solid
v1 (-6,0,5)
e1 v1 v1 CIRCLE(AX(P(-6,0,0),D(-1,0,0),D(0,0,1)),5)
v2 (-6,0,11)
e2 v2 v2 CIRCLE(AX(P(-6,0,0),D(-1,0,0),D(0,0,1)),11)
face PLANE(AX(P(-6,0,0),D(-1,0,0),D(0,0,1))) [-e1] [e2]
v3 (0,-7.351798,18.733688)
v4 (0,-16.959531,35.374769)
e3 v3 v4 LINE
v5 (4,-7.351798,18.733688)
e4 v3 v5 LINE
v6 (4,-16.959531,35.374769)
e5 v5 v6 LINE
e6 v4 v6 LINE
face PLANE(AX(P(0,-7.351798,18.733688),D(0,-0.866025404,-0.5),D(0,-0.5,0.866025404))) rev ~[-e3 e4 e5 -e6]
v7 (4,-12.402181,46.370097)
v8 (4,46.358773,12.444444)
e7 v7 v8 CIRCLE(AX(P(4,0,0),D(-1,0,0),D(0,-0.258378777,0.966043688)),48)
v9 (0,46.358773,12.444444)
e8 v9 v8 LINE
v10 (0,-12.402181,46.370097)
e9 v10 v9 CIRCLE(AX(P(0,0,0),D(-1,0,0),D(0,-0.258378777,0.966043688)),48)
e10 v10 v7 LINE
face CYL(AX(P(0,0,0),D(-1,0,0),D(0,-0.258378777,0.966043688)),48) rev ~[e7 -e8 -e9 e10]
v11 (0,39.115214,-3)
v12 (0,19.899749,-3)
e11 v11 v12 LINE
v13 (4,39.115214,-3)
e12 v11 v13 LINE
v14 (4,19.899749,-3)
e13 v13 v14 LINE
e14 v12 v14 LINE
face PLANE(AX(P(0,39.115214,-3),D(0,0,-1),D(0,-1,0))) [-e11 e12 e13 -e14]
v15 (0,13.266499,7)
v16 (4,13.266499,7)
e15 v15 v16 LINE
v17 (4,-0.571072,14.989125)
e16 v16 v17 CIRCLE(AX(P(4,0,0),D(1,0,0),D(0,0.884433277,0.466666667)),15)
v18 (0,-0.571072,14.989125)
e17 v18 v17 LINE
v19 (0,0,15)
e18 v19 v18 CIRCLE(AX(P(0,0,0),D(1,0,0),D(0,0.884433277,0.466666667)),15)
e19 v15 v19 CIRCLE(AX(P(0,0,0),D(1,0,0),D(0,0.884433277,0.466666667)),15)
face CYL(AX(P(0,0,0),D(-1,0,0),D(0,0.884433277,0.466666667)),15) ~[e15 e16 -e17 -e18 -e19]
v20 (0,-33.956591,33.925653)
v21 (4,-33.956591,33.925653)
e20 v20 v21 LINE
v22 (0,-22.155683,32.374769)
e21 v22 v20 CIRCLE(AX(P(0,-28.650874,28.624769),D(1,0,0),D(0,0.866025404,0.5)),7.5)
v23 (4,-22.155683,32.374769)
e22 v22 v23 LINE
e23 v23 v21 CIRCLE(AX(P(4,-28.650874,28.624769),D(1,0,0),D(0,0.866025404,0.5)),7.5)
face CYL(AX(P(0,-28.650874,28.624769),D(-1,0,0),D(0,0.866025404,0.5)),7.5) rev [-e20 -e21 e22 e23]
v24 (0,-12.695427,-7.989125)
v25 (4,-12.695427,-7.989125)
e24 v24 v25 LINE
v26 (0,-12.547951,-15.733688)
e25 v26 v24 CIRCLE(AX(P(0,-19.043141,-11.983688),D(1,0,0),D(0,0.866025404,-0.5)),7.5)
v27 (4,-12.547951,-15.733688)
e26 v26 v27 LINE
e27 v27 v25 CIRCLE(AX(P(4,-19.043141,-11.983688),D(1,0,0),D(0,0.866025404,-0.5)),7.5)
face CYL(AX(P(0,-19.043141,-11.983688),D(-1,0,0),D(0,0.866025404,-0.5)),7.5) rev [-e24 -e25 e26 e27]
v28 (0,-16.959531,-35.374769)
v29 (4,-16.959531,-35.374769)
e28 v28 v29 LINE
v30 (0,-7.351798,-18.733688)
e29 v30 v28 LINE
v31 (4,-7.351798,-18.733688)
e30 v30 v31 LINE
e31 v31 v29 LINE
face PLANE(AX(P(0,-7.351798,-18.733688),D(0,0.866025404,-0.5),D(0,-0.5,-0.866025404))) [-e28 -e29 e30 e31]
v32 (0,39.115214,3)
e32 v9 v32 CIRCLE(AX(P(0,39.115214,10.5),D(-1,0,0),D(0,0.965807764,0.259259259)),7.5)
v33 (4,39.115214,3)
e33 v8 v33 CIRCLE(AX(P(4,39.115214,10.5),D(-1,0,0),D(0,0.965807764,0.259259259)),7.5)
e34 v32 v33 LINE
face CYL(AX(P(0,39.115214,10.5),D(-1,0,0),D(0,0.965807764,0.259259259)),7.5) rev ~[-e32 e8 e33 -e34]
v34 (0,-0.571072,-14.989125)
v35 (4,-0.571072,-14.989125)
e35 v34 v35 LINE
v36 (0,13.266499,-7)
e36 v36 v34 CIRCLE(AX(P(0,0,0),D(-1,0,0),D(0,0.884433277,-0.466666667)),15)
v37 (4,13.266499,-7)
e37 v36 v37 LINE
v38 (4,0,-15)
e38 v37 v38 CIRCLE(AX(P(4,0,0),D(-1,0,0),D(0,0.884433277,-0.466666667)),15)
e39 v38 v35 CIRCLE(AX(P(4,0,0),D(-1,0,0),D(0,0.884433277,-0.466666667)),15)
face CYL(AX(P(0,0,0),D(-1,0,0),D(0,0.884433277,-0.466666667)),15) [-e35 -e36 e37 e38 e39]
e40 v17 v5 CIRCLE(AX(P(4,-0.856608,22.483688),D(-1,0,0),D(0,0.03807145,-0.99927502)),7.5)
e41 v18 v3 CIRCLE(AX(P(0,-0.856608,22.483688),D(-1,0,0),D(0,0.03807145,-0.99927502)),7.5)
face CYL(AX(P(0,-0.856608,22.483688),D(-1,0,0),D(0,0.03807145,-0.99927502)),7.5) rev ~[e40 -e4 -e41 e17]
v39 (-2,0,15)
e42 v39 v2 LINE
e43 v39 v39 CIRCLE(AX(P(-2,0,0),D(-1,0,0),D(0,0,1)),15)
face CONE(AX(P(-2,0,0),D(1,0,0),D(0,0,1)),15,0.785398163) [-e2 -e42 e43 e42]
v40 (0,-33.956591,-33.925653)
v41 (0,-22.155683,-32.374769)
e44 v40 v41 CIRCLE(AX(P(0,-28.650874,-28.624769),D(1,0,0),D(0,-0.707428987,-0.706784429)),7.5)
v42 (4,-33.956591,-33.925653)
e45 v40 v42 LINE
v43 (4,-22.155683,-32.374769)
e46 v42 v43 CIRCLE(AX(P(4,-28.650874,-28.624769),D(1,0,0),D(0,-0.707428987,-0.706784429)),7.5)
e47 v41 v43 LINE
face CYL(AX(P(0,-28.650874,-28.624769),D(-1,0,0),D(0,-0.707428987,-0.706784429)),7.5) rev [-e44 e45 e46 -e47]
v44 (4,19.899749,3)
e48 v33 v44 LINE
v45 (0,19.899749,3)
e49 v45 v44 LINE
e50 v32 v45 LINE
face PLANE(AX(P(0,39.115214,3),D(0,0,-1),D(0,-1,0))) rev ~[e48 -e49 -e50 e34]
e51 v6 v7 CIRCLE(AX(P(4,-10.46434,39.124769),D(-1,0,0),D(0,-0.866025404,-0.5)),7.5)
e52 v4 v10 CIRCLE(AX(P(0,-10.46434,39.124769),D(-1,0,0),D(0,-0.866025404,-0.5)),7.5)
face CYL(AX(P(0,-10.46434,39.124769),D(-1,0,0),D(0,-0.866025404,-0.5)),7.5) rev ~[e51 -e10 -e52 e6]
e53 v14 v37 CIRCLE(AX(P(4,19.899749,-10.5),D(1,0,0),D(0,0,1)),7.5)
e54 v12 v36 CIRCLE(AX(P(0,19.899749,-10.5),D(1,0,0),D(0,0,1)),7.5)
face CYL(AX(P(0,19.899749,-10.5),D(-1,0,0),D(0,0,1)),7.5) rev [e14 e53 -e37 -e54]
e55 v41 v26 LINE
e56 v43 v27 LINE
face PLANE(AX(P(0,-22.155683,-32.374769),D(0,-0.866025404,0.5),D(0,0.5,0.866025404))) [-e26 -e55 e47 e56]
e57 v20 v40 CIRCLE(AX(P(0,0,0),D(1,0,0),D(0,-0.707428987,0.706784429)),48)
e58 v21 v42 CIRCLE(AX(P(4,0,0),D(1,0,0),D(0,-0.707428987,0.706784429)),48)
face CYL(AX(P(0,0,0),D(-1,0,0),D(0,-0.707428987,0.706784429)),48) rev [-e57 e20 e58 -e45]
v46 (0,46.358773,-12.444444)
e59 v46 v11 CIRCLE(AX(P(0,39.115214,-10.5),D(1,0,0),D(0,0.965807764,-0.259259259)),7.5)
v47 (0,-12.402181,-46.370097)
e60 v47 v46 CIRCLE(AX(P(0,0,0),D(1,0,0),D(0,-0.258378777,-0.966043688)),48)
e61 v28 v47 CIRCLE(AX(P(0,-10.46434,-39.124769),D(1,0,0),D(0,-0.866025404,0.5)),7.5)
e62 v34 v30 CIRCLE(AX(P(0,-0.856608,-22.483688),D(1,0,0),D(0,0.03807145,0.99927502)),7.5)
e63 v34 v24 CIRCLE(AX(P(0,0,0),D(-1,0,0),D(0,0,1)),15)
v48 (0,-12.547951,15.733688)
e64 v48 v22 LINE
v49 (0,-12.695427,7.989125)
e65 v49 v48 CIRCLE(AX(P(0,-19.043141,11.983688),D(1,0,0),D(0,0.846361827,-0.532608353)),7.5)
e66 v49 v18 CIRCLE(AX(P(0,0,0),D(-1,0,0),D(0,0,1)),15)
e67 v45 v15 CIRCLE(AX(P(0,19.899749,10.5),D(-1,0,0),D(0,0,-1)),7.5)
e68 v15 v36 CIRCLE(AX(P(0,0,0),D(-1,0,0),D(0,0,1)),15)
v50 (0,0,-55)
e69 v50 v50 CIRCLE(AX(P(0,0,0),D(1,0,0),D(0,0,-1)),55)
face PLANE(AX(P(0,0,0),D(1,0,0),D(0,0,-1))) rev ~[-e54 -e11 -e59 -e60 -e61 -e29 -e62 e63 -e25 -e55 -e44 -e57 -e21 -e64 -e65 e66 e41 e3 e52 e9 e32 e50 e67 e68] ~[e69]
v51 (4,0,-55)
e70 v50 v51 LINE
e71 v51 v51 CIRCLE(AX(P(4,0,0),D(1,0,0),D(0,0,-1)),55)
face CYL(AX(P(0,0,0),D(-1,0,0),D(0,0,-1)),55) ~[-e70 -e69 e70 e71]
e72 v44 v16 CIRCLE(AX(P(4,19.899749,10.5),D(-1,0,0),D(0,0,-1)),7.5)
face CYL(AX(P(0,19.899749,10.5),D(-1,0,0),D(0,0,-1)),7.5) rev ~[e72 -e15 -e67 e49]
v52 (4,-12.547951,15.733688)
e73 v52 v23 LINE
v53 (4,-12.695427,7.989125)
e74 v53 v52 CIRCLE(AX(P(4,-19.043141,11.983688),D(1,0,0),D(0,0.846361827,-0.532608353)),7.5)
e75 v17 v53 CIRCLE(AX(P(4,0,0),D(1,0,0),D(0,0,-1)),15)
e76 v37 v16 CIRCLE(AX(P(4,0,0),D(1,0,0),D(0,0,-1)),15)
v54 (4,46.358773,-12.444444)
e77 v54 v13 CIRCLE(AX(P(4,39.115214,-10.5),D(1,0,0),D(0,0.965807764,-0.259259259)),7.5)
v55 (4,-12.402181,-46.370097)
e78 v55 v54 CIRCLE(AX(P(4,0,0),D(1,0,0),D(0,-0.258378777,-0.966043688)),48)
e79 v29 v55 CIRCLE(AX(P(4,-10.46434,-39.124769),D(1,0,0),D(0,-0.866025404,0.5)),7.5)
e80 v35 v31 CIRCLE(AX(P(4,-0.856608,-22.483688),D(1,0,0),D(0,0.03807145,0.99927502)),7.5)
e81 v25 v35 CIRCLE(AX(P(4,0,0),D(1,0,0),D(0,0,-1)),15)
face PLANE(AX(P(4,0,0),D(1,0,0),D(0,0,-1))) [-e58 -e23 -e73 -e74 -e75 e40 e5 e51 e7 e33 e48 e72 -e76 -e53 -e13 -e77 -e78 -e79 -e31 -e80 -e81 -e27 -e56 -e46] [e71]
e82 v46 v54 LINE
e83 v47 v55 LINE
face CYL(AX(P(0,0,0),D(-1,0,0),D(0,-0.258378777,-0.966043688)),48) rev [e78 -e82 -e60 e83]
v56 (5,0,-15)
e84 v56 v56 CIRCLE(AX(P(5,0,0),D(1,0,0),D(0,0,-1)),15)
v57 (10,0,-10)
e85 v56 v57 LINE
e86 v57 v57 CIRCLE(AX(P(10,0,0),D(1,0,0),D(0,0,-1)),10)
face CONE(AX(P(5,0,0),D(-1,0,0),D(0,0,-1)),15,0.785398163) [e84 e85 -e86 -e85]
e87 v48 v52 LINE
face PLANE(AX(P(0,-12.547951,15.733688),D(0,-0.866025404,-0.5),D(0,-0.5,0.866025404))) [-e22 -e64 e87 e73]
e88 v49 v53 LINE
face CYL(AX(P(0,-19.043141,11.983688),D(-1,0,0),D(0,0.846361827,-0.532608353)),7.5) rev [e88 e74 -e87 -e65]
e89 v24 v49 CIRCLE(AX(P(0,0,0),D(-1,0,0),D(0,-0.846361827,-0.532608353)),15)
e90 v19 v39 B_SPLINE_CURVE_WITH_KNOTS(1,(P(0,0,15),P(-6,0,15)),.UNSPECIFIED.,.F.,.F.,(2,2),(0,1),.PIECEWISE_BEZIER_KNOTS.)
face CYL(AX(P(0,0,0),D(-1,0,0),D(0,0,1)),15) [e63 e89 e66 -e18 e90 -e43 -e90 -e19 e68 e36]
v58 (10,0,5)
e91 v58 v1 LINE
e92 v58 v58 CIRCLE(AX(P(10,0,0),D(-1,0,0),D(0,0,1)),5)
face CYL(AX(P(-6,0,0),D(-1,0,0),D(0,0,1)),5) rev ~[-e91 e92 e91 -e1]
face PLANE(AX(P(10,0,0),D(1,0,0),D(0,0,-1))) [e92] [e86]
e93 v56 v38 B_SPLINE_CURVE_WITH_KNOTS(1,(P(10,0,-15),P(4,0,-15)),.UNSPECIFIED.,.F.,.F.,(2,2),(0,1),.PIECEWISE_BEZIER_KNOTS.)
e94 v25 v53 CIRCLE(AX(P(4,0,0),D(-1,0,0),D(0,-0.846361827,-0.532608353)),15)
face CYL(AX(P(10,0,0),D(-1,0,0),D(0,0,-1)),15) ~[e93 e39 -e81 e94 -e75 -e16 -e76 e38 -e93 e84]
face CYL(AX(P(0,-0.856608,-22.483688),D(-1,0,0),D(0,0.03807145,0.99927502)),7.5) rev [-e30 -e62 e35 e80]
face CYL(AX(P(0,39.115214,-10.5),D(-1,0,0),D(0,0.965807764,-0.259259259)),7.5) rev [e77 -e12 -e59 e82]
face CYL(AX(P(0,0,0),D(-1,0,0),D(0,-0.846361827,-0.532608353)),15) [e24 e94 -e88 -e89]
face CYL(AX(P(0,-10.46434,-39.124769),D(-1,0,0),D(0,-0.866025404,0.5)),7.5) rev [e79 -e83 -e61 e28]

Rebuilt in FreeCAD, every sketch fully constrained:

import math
import FreeCAD as App
import Part
import Sketcher
Q = App.Units.Quantity


def edges_at(feature, points):
    """Names of the edges that pass closest to the given points."""
    edges = feature.Shape.Edges
    near = lambda p: min(range(len(edges)), key=lambda i: edges[i].distToShape(Part.Vertex(*p))[0])
    return sorted({f"Edge{near(p) + 1}" for p in points})

doc = App.newDocument("Part")
body = doc.addObject("PartDesign::Body", "Body")

# Sketch on YZ plane
sketch1 = body.newObject("Sketcher::SketchObject", "Sketch")
sketch1.AttachmentSupport = (doc.getObject("YZ_Plane"), [""])
sketch1.MapMode = "FlatFace"
sketch1.addGeometry([
    Part.Circle(App.Vector(0, 0, 0), App.Vector(0, 0, 1), 55),  # 0
    Part.LineSegment(App.Vector(-13, -16, 0), App.Vector(-22, -32, 0)),  # 1
    Part.ArcOfCircle(Part.Circle(App.Vector(-29, -29, 0), App.Vector(0, 0, 1), 8), math.radians(-135), math.radians(-30)),  # 2
    Part.ArcOfCircle(Part.Circle(App.Vector(0, 0, 0), App.Vector(0, 0, 1), 48), math.radians(135), math.radians(225)),  # 3
    Part.ArcOfCircle(Part.Circle(App.Vector(-29, 29, 0), App.Vector(0, 0, 1), 8), math.radians(30), math.radians(135)),  # 4
    Part.LineSegment(App.Vector(-22, 32, 0), App.Vector(-13, 16, 0)),  # 5
    Part.ArcOfCircle(Part.Circle(App.Vector(-19, 12, 0), App.Vector(0, 0, 1), 8), math.radians(-32), math.radians(30)),  # 6
    Part.ArcOfCircle(Part.Circle(App.Vector(0, 0, 0), App.Vector(0, 0, 1), 15), math.radians(148), math.radians(212)),  # 7
    Part.ArcOfCircle(Part.Circle(App.Vector(-19, -12, 0), App.Vector(0, 0, 1), 8), math.radians(-30), math.radians(32)),  # 8
    Part.ArcOfCircle(Part.Circle(App.Vector(39, 10, 0), App.Vector(0, 0, 1), 8), math.radians(-90), math.radians(15)),  # 9
    Part.LineSegment(App.Vector(39, 3, 0), App.Vector(20, 3, 0)),  # 10
    Part.ArcOfCircle(Part.Circle(App.Vector(20, 11, 0), App.Vector(0, 0, 1), 8), math.radians(-152), math.radians(-90)),  # 11
    Part.ArcOfCircle(Part.Circle(App.Vector(0, 0, 0), App.Vector(0, 0, 1), 15), math.radians(28), math.radians(92)),  # 12
    Part.ArcOfCircle(Part.Circle(App.Vector(-1, 22, 0), App.Vector(0, 0, 1), 8), math.radians(-150), math.radians(-88)),  # 13
    Part.LineSegment(App.Vector(-7, 19, 0), App.Vector(-17, 35, 0)),  # 14
    Part.ArcOfCircle(Part.Circle(App.Vector(-10, 39, 0), App.Vector(0, 0, 1), 7), math.radians(105), math.radians(210)),  # 15
    Part.ArcOfCircle(Part.Circle(App.Vector(0, 0, 0), App.Vector(0, 0, 1), 48), math.radians(15), math.radians(105)),  # 16
    Part.LineSegment(App.Vector(20, -3, 0), App.Vector(39, -3, 0)),  # 17
    Part.ArcOfCircle(Part.Circle(App.Vector(39, -10, 0), App.Vector(0, 0, 1), 8), math.radians(-15), math.radians(90)),  # 18
    Part.ArcOfCircle(Part.Circle(App.Vector(0, 0, 0), App.Vector(0, 0, 1), 48), math.radians(-105), math.radians(-15)),  # 19
    Part.ArcOfCircle(Part.Circle(App.Vector(-10, -39, 0), App.Vector(0, 0, 1), 7), math.radians(150), math.radians(255)),  # 20
    Part.LineSegment(App.Vector(-17, -35, 0), App.Vector(-7, -19, 0)),  # 21
    Part.ArcOfCircle(Part.Circle(App.Vector(-1, -22, 0), App.Vector(0, 0, 1), 8), math.radians(88), math.radians(150)),  # 22
    Part.ArcOfCircle(Part.Circle(App.Vector(0, 0, 0), App.Vector(0, 0, 1), 15), math.radians(-92), math.radians(-28)),  # 23
    Part.ArcOfCircle(Part.Circle(App.Vector(20, -11, 0), App.Vector(0, 0, 1), 8), math.radians(90), math.radians(152)),  # 24
], False)
sketch1.addConstraint([
    Sketcher.Constraint("Tangent", 1, 2, 2, 2),
    Sketcher.Constraint("Tangent", 2, 1, 3, 2),
    Sketcher.Constraint("Tangent", 3, 1, 4, 2),
    Sketcher.Constraint("Tangent", 4, 1, 5, 1),
    Sketcher.Constraint("Tangent", 5, 2, 6, 2),
    Sketcher.Constraint("Tangent", 6, 1, 7, 1),
    Sketcher.Constraint("Tangent", 7, 2, 8, 2),
    Sketcher.Constraint("Tangent", 8, 1, 1, 1),
    Sketcher.Constraint("Tangent", 9, 1, 10, 1),
    Sketcher.Constraint("Tangent", 10, 2, 11, 2),
    Sketcher.Constraint("Tangent", 11, 1, 12, 1),
    Sketcher.Constraint("Tangent", 12, 2, 13, 2),
    Sketcher.Constraint("Tangent", 13, 1, 14, 1),
    Sketcher.Constraint("Tangent", 14, 2, 15, 2),
    Sketcher.Constraint("Tangent", 15, 1, 16, 2),
    Sketcher.Constraint("Tangent", 16, 1, 9, 2),
    Sketcher.Constraint("Tangent", 17, 2, 18, 2),
    Sketcher.Constraint("Tangent", 18, 1, 19, 2),
    Sketcher.Constraint("Tangent", 19, 1, 20, 2),
    Sketcher.Constraint("Tangent", 20, 1, 21, 1),
    Sketcher.Constraint("Tangent", 21, 2, 22, 2),
    Sketcher.Constraint("Tangent", 22, 1, 23, 1),
    Sketcher.Constraint("Tangent", 23, 2, 24, 2),
    Sketcher.Constraint("Tangent", 24, 1, 17, 1),
    Sketcher.Constraint("Horizontal", 10),
    Sketcher.Constraint("Horizontal", 17),
    Sketcher.Constraint("Coincident", 0, 3, -1, 1),
    Sketcher.Constraint("Coincident", 3, 3, -1, 1),
    Sketcher.Constraint("Coincident", 7, 3, -1, 1),
    Sketcher.Constraint("Coincident", 12, 3, -1, 1),
    Sketcher.Constraint("Coincident", 16, 3, -1, 1),
    Sketcher.Constraint("Coincident", 19, 3, -1, 1),
    Sketcher.Constraint("Coincident", 23, 3, -1, 1),
    Sketcher.Constraint("Equal", 2, 4),
    Sketcher.Constraint("Equal", 4, 6),
    Sketcher.Constraint("Equal", 6, 8),
    Sketcher.Constraint("Equal", 8, 9),
    Sketcher.Constraint("Equal", 9, 11),
    Sketcher.Constraint("Equal", 7, 12),
    Sketcher.Constraint("Equal", 11, 13),
    Sketcher.Constraint("Equal", 13, 15),
    Sketcher.Constraint("Equal", 3, 16),
    Sketcher.Constraint("Equal", 15, 18),
    Sketcher.Constraint("Equal", 16, 19),
    Sketcher.Constraint("Equal", 18, 20),
    Sketcher.Constraint("Equal", 20, 22),
    Sketcher.Constraint("Equal", 12, 23),
    Sketcher.Constraint("Equal", 22, 24),
    Sketcher.Constraint("Symmetric", 1, 2, 4, 1, -1),
    Sketcher.Constraint("Symmetric", 14, 2, 20, 1, -1),
    Sketcher.Constraint("Parallel", 5, 14),
    Sketcher.Constraint("Vertical", 9, 3, 18, 3),
    Sketcher.Constraint("Equal", 5, 14),
    Sketcher.Constraint("Diameter", 0, 110.0),
    Sketcher.Constraint("Radius", 3, 48.0),
    Sketcher.Constraint("Radius", 7, 15.0),
    Sketcher.Constraint("Radius", 2, 7.5),
    Sketcher.Constraint("Angle", 1, Q("-120 deg")),
    Sketcher.Constraint("DistanceY", -1, 1, 9, 1, 3.0),
    Sketcher.Constraint("DistanceY", 6, 1, 12, 2, 7.0),
])
pad1 = body.newObject("PartDesign::Pad", "Pad")
pad1.Profile = sketch1
pad1.Length = 4

# Sketch on YZ plane
sketch2 = body.newObject("Sketcher::SketchObject", "Sketch001")
sketch2.AttachmentSupport = (doc.getObject("YZ_Plane"), [""])
sketch2.MapMode = "FlatFace"
sketch2.addGeometry(Part.Circle(App.Vector(0, 0, 0), App.Vector(0, 0, 1), 15), False)
sketch2.addConstraint([
    Sketcher.Constraint("Coincident", 0, 3, -1, 1),
    Sketcher.Constraint("Diameter", 0, 30.0),
])

# Sketch on YZ plane
sketch3 = body.newObject("Sketcher::SketchObject", "Sketch002")
sketch3.AttachmentSupport = (doc.getObject("YZ_Plane"), [""])
sketch3.MapMode = "FlatFace"
sketch3.AttachmentOffset = App.Placement(App.Vector(0, 0, -6), App.Rotation())
sketch3.addGeometry(Part.Circle(App.Vector(0, 0, 0), App.Vector(0, 0, 1), 15), False)
sketch3.addConstraint([
    Sketcher.Constraint("Coincident", 0, 3, -1, 1),
    Sketcher.Constraint("Diameter", 0, 30.0),
])

additiveloft = body.newObject("PartDesign::AdditiveLoft", "AdditiveLoft")
additiveloft.Profile = sketch2
additiveloft.Sections = [sketch3]

# Sketch on YZ plane
sketch4 = body.newObject("Sketcher::SketchObject", "Sketch003")
sketch4.AttachmentSupport = (doc.getObject("YZ_Plane"), [""])
sketch4.MapMode = "FlatFace"
sketch4.AttachmentOffset = App.Placement(App.Vector(0, 0, 10), App.Rotation())
sketch4.addGeometry(Part.Circle(App.Vector(0, 0, 0), App.Vector(0, 0, 1), 15), False)
sketch4.addConstraint([
    Sketcher.Constraint("Coincident", 0, 3, -1, 1),
    Sketcher.Constraint("Diameter", 0, 30.0),
])

# Sketch on YZ plane
sketch5 = body.newObject("Sketcher::SketchObject", "Sketch004")
sketch5.AttachmentSupport = (doc.getObject("YZ_Plane"), [""])
sketch5.MapMode = "FlatFace"
sketch5.AttachmentOffset = App.Placement(App.Vector(0, 0, 4), App.Rotation())
sketch5.addGeometry(Part.Circle(App.Vector(0, 0, 0), App.Vector(0, 0, 1), 15), False)
sketch5.addConstraint([
    Sketcher.Constraint("Coincident", 0, 3, -1, 1),
    Sketcher.Constraint("Diameter", 0, 30.0),
])

additiveloft2 = body.newObject("PartDesign::AdditiveLoft", "AdditiveLoft001")
additiveloft2.Profile = sketch4
additiveloft2.Sections = [sketch5]

# Sketch on YZ plane
sketch6 = body.newObject("Sketcher::SketchObject", "Sketch005")
sketch6.AttachmentSupport = (doc.getObject("YZ_Plane"), [""])
sketch6.MapMode = "FlatFace"
sketch6.AttachmentOffset = App.Placement(App.Vector(0, 0, -6), App.Rotation())
sketch6.addGeometry(Part.Circle(App.Vector(0, 0, 0), App.Vector(0, 0, 1), 5), False)
sketch6.addConstraint([
    Sketcher.Constraint("Coincident", 0, 3, -1, 1),
    Sketcher.Constraint("Diameter", 0, 10.0),
])
pocket1 = body.newObject("PartDesign::Pocket", "Pocket")
pocket1.Profile = sketch6
pocket1.Length = 48
pocket1.Midplane = True
doc.recompute()

chamfer = body.newObject("PartDesign::Chamfer", "Chamfer")
chamfer.Base = (pocket1, edges_at(pocket1, [(10, 0, 15)]))
chamfer.Size = 5
doc.recompute()

chamfer2 = body.newObject("PartDesign::Chamfer", "Chamfer001")
chamfer2.Base = (chamfer, edges_at(chamfer, [(-6, 0, -15)]))
chamfer2.Size = 4

doc.recompute()
